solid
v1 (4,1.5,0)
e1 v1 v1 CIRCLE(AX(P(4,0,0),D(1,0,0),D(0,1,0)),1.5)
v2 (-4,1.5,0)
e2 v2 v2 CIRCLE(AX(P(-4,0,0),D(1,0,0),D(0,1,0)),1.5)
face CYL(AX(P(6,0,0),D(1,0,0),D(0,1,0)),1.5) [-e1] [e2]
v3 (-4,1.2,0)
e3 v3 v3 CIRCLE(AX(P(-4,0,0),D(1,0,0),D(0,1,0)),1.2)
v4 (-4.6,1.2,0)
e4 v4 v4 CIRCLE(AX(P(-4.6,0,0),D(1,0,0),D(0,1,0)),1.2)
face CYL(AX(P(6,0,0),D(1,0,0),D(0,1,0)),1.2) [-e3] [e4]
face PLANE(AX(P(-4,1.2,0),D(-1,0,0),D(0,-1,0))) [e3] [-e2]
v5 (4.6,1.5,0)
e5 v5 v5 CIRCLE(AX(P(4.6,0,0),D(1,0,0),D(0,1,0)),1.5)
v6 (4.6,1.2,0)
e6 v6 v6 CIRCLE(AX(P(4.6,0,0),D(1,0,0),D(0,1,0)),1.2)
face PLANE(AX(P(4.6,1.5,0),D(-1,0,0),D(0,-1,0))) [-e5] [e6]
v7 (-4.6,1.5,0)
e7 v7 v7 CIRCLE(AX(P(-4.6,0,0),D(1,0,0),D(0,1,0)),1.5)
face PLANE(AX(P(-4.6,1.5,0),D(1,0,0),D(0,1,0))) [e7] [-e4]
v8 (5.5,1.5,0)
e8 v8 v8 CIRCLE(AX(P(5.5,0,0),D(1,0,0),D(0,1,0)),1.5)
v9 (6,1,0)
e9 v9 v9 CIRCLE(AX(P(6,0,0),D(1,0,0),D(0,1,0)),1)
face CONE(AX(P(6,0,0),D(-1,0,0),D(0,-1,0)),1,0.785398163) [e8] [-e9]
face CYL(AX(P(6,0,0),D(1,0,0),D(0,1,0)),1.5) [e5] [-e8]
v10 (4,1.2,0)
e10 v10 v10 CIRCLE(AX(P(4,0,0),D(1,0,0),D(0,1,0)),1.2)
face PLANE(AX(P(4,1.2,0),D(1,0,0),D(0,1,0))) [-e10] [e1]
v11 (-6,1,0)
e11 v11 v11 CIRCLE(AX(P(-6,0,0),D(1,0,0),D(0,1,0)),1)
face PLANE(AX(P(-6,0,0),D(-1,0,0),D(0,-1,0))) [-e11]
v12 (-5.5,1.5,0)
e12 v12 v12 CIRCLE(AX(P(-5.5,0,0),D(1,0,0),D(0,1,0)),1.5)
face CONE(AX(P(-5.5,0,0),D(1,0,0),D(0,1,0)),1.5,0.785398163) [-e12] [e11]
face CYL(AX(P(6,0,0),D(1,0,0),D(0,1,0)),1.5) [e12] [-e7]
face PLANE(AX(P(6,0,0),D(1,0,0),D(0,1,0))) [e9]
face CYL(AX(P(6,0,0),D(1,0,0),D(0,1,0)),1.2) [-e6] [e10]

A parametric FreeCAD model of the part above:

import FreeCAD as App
import Part
import Sketcher


def add_polygon(sketch, points):
    """Adds a closed chain of lines whose ends are joined by coincident constraints."""
    first, n = sketch.GeometryCount, len(points)
    for a, b in zip(points, points[1:] + points[:1]):
        sketch.addGeometry(Part.LineSegment(App.Vector(*a, 0), App.Vector(*b, 0)), False)
    for i in range(n):
        sketch.addConstraint(Sketcher.Constraint("Coincident", first + i, 2, first + (i + 1) % n, 1))

doc = App.newDocument("Part")
body = doc.addObject("PartDesign::Body", "Body")

# Sketch on XY plane
sketch1 = doc.addObject("Sketcher::SketchObject", "Sketch")
body.addObject(sketch1)
sketch1.AttachmentSupport = (doc.XY_Plane, [""])
sketch1.MapMode = "FlatFace"
add_polygon(sketch1, [(-6, 0), (6, 0), (6, 1), (5.5, 1.5), (4.6, 1.5), (4.6, 1.2), (4, 1.2), (4, 1.5), (-4, 1.5), (-4, 1.2), (-4.6, 1.2), (-4.6, 1.5), (-5.5, 1.5), (-6, 1)])  # lines 0-13
sketch1.addConstraint(Sketcher.Constraint("Horizontal", 0))
sketch1.addConstraint(Sketcher.Constraint("Vertical", 1))
sketch1.addConstraint(Sketcher.Constraint("Horizontal", 3))
sketch1.addConstraint(Sketcher.Constraint("Vertical", 4))
sketch1.addConstraint(Sketcher.Constraint("Horizontal", 5))
sketch1.addConstraint(Sketcher.Constraint("Vertical", 6))
sketch1.addConstraint(Sketcher.Constraint("Horizontal", 7))
sketch1.addConstraint(Sketcher.Constraint("Vertical", 8))
sketch1.addConstraint(Sketcher.Constraint("Horizontal", 9))
sketch1.addConstraint(Sketcher.Constraint("Vertical", 10))
sketch1.addConstraint(Sketcher.Constraint("Horizontal", 11))
sketch1.addConstraint(Sketcher.Constraint("Vertical", 13))
sketch1.addConstraint(Sketcher.Constraint("Symmetric", 0, 2, 13, 2, -1, 1))
sketch1.addConstraint(Sketcher.Constraint("Symmetric", 5, 2, 8, 2, -2))
sketch1.addConstraint(Sketcher.Constraint("Symmetric", 3, 2, 10, 2, -2))
sketch1.addConstraint(Sketcher.Constraint("Perpendicular", 2, 12))
sketch1.addConstraint(Sketcher.Constraint("Horizontal", 3, 2, 6, 2))
sketch1.addConstraint(Sketcher.Constraint("Horizontal", 1, 2, 12, 2))
sketch1.addConstraint(Sketcher.Constraint("Equal", 3, 11))
sketch1.addConstraint(Sketcher.Constraint("DistanceX", 0, 1, 0, 2, 12.0))
sketch1.addConstraint(Sketcher.Constraint("DistanceX", 7, 2, 7, 1, 8.0))
sketch1.addConstraint(Sketcher.Constraint("DistanceY", 1, 1, 1, 2, 1.0))
sketch1.addConstraint(Sketcher.Constraint("DistanceX", 3, 2, 3, 1, 0.9))
sketch1.addConstraint(Sketcher.Constraint("DistanceX", 5, 2, 5, 1, 0.6))
sketch1.addConstraint(Sketcher.Constraint("DistanceY", 4, 2, 4, 1, 0.3))
revolution = doc.addObject("PartDesign::Revolution", "Revolution")
body.addObject(revolution)
revolution.Profile = sketch1
revolution.ReferenceAxis = (sketch1, ["H_Axis"])
revolution.Angle = 360

doc.recompute()
